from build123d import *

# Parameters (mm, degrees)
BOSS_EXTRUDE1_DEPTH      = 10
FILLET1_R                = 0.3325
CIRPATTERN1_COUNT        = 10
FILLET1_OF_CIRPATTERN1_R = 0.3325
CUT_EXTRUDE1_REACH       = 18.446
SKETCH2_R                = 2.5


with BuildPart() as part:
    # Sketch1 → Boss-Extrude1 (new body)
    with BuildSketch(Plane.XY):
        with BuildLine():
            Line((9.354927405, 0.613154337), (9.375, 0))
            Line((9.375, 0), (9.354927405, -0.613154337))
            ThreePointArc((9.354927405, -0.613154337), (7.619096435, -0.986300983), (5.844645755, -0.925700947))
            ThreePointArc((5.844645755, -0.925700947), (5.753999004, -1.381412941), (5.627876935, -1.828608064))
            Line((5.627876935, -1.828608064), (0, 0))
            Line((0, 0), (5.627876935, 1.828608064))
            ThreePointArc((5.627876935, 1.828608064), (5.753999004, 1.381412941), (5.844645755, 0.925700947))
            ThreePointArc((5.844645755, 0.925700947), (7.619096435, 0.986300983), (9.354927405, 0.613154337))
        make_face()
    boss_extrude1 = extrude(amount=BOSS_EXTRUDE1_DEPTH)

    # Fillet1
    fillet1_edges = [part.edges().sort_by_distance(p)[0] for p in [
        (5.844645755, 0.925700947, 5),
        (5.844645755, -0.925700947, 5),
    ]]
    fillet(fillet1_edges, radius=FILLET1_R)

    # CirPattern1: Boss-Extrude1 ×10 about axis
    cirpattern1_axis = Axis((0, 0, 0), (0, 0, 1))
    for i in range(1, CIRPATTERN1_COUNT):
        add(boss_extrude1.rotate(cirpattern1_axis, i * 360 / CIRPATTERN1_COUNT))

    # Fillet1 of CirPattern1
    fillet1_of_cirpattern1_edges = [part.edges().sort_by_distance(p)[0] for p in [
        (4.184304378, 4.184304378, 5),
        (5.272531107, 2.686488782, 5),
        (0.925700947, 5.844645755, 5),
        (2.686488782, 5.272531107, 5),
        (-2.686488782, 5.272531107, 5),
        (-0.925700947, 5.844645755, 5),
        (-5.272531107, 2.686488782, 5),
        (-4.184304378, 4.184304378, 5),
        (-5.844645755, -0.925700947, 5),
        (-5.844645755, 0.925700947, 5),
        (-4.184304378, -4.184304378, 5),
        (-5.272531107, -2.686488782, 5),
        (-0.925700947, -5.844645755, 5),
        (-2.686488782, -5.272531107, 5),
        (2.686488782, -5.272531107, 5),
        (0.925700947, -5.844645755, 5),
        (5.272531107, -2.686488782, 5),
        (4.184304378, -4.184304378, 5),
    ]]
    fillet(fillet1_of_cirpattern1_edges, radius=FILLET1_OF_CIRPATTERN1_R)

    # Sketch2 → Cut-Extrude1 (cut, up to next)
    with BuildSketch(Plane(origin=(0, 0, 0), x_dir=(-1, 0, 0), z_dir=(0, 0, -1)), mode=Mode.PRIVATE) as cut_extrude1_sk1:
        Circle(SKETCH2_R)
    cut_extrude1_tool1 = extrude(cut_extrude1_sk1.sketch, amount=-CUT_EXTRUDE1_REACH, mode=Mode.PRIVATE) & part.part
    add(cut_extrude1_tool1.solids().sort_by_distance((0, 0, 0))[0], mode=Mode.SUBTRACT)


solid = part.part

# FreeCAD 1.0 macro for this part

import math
import FreeCAD as App
import Part
import Sketcher

V = App.Vector
Q = App.Units.Quantity


def edges_at(feature, points):
    """Names of the edges that pass closest to the given points."""
    edges = feature.Shape.Edges
    near = lambda p: min(range(len(edges)), key=lambda i: edges[i].distToShape(Part.Vertex(*p))[0])
    return sorted({f"Edge{near(p) + 1}" for p in points})

doc = App.newDocument("Part")
body = doc.addObject("PartDesign::Body", "Body")

sketch1 = body.newObject("Sketcher::SketchObject", "Sketch")
sketch1.AttachmentSupport = (doc.getObject("XY_Plane"), [""])
sketch1.MapMode = "FlatFace"
sketch1.addGeometry([
    Part.LineSegment(V(9.375, 0, 0), V(9.354927, 0.613154, 0)),
    Part.ArcOfCircle(Part.Circle(V(6.977087, -6.224252, 0), V(0, 0, 1), 7.239078), math.radians(70.823891), math.radians(99)),
    Part.ArcOfCircle(Part.Circle(V(0, 0, 0), V(0, 0, 1), 5.9175), math.radians(9), math.radians(18)),
    Part.LineSegment(V(5.627877, 1.828608, 0), V(0, 0, 0)),
    Part.LineSegment(V(0, 0, 0), V(5.627877, -1.828608, 0)),
    Part.ArcOfCircle(Part.Circle(V(0, 0, 0), V(0, 0, 1), 5.9175), math.radians(-18), math.radians(-9)),
    Part.ArcOfCircle(Part.Circle(V(6.977087, 6.224252, 0), V(0, 0, 1), 7.239078), math.radians(-99), math.radians(-70.823891)),
    Part.LineSegment(V(9.354927, -0.613154, 0), V(9.375, 0, 0)),
], False)
sketch1.addConstraint([
    Sketcher.Constraint("Coincident", 0, 2, 1, 1),
    Sketcher.Constraint("Coincident", 1, 2, 2, 1),
    Sketcher.Constraint("Coincident", 2, 2, 3, 1),
    Sketcher.Constraint("Coincident", 3, 2, 4, 1),
    Sketcher.Constraint("Coincident", 4, 2, 5, 1),
    Sketcher.Constraint("Coincident", 5, 2, 6, 1),
    Sketcher.Constraint("Coincident", 6, 2, 7, 1),
    Sketcher.Constraint("Coincident", 7, 2, 0, 1),
    Sketcher.Constraint("Coincident", 2, 3, -1, 1),
    Sketcher.Constraint("Coincident", 5, 3, -1, 1),
    Sketcher.Constraint("Coincident", 3, 2, -1, 1),
    Sketcher.Constraint("Equal", 2, 5),
    Sketcher.Constraint("Equal", 1, 6),
    Sketcher.Constraint("Symmetric", 1, 3, 6, 3, -1),
    Sketcher.Constraint("PointOnObject", 7, 2, -1),
    Sketcher.Constraint("Vertical", 2, 2, 4, 2),
    Sketcher.Constraint("Vertical", 0, 2, 6, 2),
    Sketcher.Constraint("Angle", 3, Q("-162 deg")),
    Sketcher.Constraint("Radius", 2, Q("5.9175 mm")),
    Sketcher.Constraint("DistanceX", -1, 1, 7, 2, Q("9.375 mm")),
    Sketcher.Constraint("Radius", 1, Q("7.239078 mm")),
    Sketcher.Constraint("DistanceY", -1, 1, 1, 2, Q("0.925701 mm")),
    Sketcher.Constraint("DistanceY", 1, 3, -1, 1, Q("6.224252 mm")),
    Sketcher.Constraint("DistanceX", 6, 3, 0, 2, Q("2.37784 mm")),
])
pad1 = body.newObject("PartDesign::Pad", "Pad")
pad1.Profile = sketch1
pad1.Length = 10
doc.recompute()

fillet = body.newObject("PartDesign::Fillet", "Fillet")
fillet.Base = (pad1, edges_at(pad1, [(5.845, 0.926, 5), (5.845, -0.926, 5)]))
fillet.Radius = 0.3325
doc.recompute()

polarpattern = body.newObject("PartDesign::PolarPattern", "PolarPattern")
polarpattern.Originals = [pad1]
polarpattern.Axis = (doc.getObject("Z_Axis"), [""])
polarpattern.Angle = 360
polarpattern.Occurrences = 10
body.Tip = polarpattern
doc.recompute()

fillet2 = body.newObject("PartDesign::Fillet", "Fillet001")
fillet2.Base = (polarpattern, edges_at(polarpattern, [
    (4.184, 4.184, 5),
    (5.273, 2.686, 5),
    (0.926, 5.845, 5),
    (2.686, 5.273, 5),
    (-2.686, 5.273, 5),
    (-0.926, 5.845, 5),
    (-5.273, 2.686, 5),
    (-4.184, 4.184, 5),
    (-5.845, -0.926, 5),
    (-5.845, 0.926, 5),
    (-4.184, -4.184, 5),
    (-5.273, -2.686, 5),
    (-0.926, -5.845, 5),
    (-2.686, -5.273, 5),
    (2.686, -5.273, 5),
    (0.926, -5.845, 5),
    (5.273, -2.686, 5),
    (4.184, -4.184, 5),
]))
fillet2.Radius = 0.3325

sketch2 = body.newObject("Sketcher::SketchObject", "Sketch001")
sketch2.AttachmentSupport = (doc.getObject("XY_Plane"), [""])
sketch2.MapMode = "FlatFace"
sketch2.addGeometry(Part.Circle(V(0, 0, 0), V(0, 0, 1), 2.5), False)
sketch2.addConstraint([
    Sketcher.Constraint("Coincident", 0, 3, -1, 1),
    Sketcher.Constraint("Diameter", 0, Q("5 mm")),
])
pocket1 = body.newObject("PartDesign::Pocket", "Pocket")
pocket1.Profile = sketch2
pocket1.Type = "UpToFirst"
pocket1.Reversed = True

doc.recompute()
